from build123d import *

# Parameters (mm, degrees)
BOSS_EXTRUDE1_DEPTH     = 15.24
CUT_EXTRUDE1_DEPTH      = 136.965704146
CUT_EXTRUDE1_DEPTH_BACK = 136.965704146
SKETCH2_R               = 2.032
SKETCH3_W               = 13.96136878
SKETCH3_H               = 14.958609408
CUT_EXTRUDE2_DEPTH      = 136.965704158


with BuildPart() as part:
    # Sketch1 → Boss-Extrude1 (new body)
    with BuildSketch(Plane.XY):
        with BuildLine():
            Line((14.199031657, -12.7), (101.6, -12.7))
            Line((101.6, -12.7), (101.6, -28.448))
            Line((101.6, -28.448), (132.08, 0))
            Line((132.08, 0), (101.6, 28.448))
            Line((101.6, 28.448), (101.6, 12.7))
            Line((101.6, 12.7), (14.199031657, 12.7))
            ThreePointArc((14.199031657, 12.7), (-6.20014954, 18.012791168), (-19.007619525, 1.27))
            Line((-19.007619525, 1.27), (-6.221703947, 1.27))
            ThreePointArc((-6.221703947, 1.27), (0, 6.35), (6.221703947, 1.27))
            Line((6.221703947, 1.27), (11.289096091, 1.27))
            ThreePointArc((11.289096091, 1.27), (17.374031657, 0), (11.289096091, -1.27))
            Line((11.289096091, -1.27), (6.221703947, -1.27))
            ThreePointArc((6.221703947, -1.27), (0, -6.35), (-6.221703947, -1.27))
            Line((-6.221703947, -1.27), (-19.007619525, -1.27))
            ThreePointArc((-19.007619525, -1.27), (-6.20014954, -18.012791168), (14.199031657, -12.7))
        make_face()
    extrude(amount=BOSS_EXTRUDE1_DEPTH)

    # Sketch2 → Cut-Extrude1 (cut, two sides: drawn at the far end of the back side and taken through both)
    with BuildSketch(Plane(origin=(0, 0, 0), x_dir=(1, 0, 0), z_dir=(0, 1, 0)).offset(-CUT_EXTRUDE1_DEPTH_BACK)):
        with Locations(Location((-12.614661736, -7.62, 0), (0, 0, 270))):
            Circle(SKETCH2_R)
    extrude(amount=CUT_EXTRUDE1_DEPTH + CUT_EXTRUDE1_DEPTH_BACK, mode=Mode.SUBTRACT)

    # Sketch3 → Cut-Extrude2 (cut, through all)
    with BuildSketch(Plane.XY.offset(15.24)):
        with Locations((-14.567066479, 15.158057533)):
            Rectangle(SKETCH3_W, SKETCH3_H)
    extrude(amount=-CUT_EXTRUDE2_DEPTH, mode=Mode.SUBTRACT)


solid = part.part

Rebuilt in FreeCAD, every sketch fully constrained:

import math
import FreeCAD as App
import Part
import Sketcher
Q = App.Units.Quantity

doc = App.newDocument("Part")
body = doc.addObject("PartDesign::Body", "Body")

# Sketch on XY plane
sketch1 = doc.addObject("Sketcher::SketchObject", "Sketch")
body.addObject(sketch1)
sketch1.AttachmentSupport = (doc.XY_Plane, [""])
sketch1.MapMode = "FlatFace"
sketch1.addGeometry([
    Part.LineSegment(App.Vector(14.2, -12.7, 0), App.Vector(101.6, -12.7, 0)),  # 0
    Part.LineSegment(App.Vector(101.6, -12.7, 0), App.Vector(101.6, -28.4, 0)),  # 1
    Part.LineSegment(App.Vector(101.6, -28.4, 0), App.Vector(132.1, 0, 0)),  # 2
    Part.LineSegment(App.Vector(132.1, 0, 0), App.Vector(101.6, 28.4, 0)),  # 3
    Part.LineSegment(App.Vector(101.6, 28.4, 0), App.Vector(101.6, 12.7, 0)),  # 4
    Part.LineSegment(App.Vector(101.6, 12.7, 0), App.Vector(14.2, 12.7, 0)),  # 5
    Part.ArcOfCircle(Part.Circle(App.Vector(0, 0, 0), App.Vector(0, 0, 1), 19.1), math.radians(42), math.radians(176)),  # 6
    Part.LineSegment(App.Vector(-19, 1.3, 0), App.Vector(-6.2, 1.3, 0)),  # 7
    Part.ArcOfCircle(Part.Circle(App.Vector(0, 0, 0), App.Vector(0, 0, 1), 6.3), math.radians(12), math.radians(168)),  # 8
    Part.LineSegment(App.Vector(6.2, 1.3, 0), App.Vector(11.3, 1.3, 0)),  # 9
    Part.ArcOfCircle(Part.Circle(App.Vector(14.2, 0, 0), App.Vector(0, 0, 1), 3.2), math.radians(-156), math.radians(156)),  # 10
    Part.LineSegment(App.Vector(11.3, -1.3, 0), App.Vector(6.2, -1.3, 0)),  # 11
    Part.ArcOfCircle(Part.Circle(App.Vector(0, 0, 0), App.Vector(0, 0, 1), 6.3), math.radians(-168), math.radians(-12)),  # 12
    Part.LineSegment(App.Vector(-6.2, -1.3, 0), App.Vector(-19, -1.3, 0)),  # 13
    Part.ArcOfCircle(Part.Circle(App.Vector(0, 0, 0), App.Vector(0, 0, 1), 19.1), math.radians(-176), math.radians(-42)),  # 14
], False)
sketch1.addConstraint([
    Sketcher.Constraint("Coincident", 0, 2, 1, 1),
    Sketcher.Constraint("Coincident", 1, 2, 2, 1),
    Sketcher.Constraint("Coincident", 2, 2, 3, 1),
    Sketcher.Constraint("Coincident", 3, 2, 4, 1),
    Sketcher.Constraint("Coincident", 4, 2, 5, 1),
    Sketcher.Constraint("Coincident", 5, 2, 6, 1),
    Sketcher.Constraint("Coincident", 6, 2, 7, 1),
    Sketcher.Constraint("Coincident", 7, 2, 8, 2),
    Sketcher.Constraint("Coincident", 8, 1, 9, 1),
    Sketcher.Constraint("Coincident", 9, 2, 10, 2),
    Sketcher.Constraint("Coincident", 10, 1, 11, 1),
    Sketcher.Constraint("Coincident", 11, 2, 12, 2),
    Sketcher.Constraint("Coincident", 12, 1, 13, 1),
    Sketcher.Constraint("Coincident", 13, 2, 14, 1),
    Sketcher.Constraint("Coincident", 14, 2, 0, 1),
    Sketcher.Constraint("Horizontal", 0),
    Sketcher.Constraint("Vertical", 1),
    Sketcher.Constraint("Vertical", 4),
    Sketcher.Constraint("Horizontal", 5),
    Sketcher.Constraint("Horizontal", 7),
    Sketcher.Constraint("Horizontal", 9),
    Sketcher.Constraint("Horizontal", 11),
    Sketcher.Constraint("Horizontal", 13),
    Sketcher.Constraint("Coincident", 6, 3, -1, 1),
    Sketcher.Constraint("Coincident", 8, 3, -1, 1),
    Sketcher.Constraint("Coincident", 12, 3, -1, 1),
    Sketcher.Constraint("Coincident", 14, 3, -1, 1),
    Sketcher.Constraint("Equal", 8, 12),
    Sketcher.Constraint("Equal", 6, 14),
    Sketcher.Constraint("Symmetric", 1, 2, 3, 2, -1),
    Sketcher.Constraint("Symmetric", 9, 2, 10, 1, -1),
    Sketcher.Constraint("PointOnObject", 2, 2, -1),
    Sketcher.Constraint("Horizontal", 7, 2, 8, 1),
    Sketcher.Constraint("Horizontal", 11, 2, 12, 1),
    Sketcher.Constraint("Vertical", 10, 3, 5, 2),
    Sketcher.Constraint("Vertical", 5, 2, 14, 2),
    Sketcher.Constraint("Radius", 6, Q("0.75 in")),
    Sketcher.Constraint("Radius", 8, Q("0.25 in")),
    Sketcher.Constraint("DistanceX", -1, 1, 0, 2, Q("4 in")),
    Sketcher.Constraint("Radius", 10, Q("0.125 in")),
    Sketcher.Constraint("DistanceY", 0, 2, 4, 2, Q("1 in")),
    Sketcher.Constraint("DistanceY", 1, 2, 1, 1, Q("0.62 in")),
    Sketcher.Constraint("DistanceX", -1, 1, 2, 2, Q("5.2 in")),
    Sketcher.Constraint("DistanceY", 10, 1, 9, 2, Q("0.1 in")),
])
pad1 = doc.addObject("PartDesign::Pad", "Pad")
body.addObject(pad1)
pad1.Profile = sketch1
pad1.Length = Q("0.6 in")

# Sketch on XZ plane
sketch2 = doc.addObject("Sketcher::SketchObject", "Sketch001")
body.addObject(sketch2)
sketch2.AttachmentSupport = (doc.XZ_Plane, [""])
sketch2.MapMode = "FlatFace"
sketch2.addGeometry(Part.Circle(App.Vector(-12.6, 7.6, 0), App.Vector(0, 0, 1), 2), False)
sketch2.addConstraint([
    Sketcher.Constraint("Diameter", 0, Q("0.16 in")),
    Sketcher.Constraint("DistanceY", -1, 1, 0, 3, Q("0.3 in")),
    Sketcher.Constraint("DistanceX", 0, 3, -1, 1, 12.614662),
])
pocket1 = doc.addObject("PartDesign::Pocket", "Pocket")
body.addObject(pocket1)
pocket1.Profile = sketch2
pocket1.Type = "ThroughAll"
pocket1.Midplane = True

# Sketch on XY plane
sketch3 = doc.addObject("Sketcher::SketchObject", "Sketch002")
body.addObject(sketch3)
sketch3.AttachmentSupport = (doc.XY_Plane, [""])
sketch3.MapMode = "FlatFace"
sketch3.AttachmentOffset = App.Placement(App.Vector(0, 0, 0.6 * 25.4), App.Rotation())
sketch3.addGeometry([
    Part.LineSegment(App.Vector(-22, 23, 0), App.Vector(-22, 8, 0)),
    Part.LineSegment(App.Vector(-22, 8, 0), App.Vector(-8, 8, 0)),
    Part.LineSegment(App.Vector(-8, 8, 0), App.Vector(-8, 23, 0)),
    Part.LineSegment(App.Vector(-8, 23, 0), App.Vector(-22, 23, 0)),
], False)
sketch3.addConstraint([
    Sketcher.Constraint("Coincident", 0, 2, 1, 1),
    Sketcher.Constraint("Coincident", 1, 2, 2, 1),
    Sketcher.Constraint("Coincident", 2, 2, 3, 1),
    Sketcher.Constraint("Coincident", 3, 2, 0, 1),
    Sketcher.Constraint("Vertical", 0),
    Sketcher.Constraint("Horizontal", 1),
    Sketcher.Constraint("Vertical", 2),
    Sketcher.Constraint("Horizontal", 3),
    Sketcher.Constraint("DistanceX", 1, 1, 1, 2, 13.961369),
    Sketcher.Constraint("DistanceY", 0, 2, 0, 1, 14.958609),
    Sketcher.Constraint("DistanceX", 0, 2, -1, 1, 21.547751),
    Sketcher.Constraint("DistanceY", -1, 1, 0, 2, 7.678753),
])
pocket2 = doc.addObject("PartDesign::Pocket", "Pocket001")
body.addObject(pocket2)
pocket2.Profile = sketch3
pocket2.Type = "ThroughAll"

doc.recompute()
